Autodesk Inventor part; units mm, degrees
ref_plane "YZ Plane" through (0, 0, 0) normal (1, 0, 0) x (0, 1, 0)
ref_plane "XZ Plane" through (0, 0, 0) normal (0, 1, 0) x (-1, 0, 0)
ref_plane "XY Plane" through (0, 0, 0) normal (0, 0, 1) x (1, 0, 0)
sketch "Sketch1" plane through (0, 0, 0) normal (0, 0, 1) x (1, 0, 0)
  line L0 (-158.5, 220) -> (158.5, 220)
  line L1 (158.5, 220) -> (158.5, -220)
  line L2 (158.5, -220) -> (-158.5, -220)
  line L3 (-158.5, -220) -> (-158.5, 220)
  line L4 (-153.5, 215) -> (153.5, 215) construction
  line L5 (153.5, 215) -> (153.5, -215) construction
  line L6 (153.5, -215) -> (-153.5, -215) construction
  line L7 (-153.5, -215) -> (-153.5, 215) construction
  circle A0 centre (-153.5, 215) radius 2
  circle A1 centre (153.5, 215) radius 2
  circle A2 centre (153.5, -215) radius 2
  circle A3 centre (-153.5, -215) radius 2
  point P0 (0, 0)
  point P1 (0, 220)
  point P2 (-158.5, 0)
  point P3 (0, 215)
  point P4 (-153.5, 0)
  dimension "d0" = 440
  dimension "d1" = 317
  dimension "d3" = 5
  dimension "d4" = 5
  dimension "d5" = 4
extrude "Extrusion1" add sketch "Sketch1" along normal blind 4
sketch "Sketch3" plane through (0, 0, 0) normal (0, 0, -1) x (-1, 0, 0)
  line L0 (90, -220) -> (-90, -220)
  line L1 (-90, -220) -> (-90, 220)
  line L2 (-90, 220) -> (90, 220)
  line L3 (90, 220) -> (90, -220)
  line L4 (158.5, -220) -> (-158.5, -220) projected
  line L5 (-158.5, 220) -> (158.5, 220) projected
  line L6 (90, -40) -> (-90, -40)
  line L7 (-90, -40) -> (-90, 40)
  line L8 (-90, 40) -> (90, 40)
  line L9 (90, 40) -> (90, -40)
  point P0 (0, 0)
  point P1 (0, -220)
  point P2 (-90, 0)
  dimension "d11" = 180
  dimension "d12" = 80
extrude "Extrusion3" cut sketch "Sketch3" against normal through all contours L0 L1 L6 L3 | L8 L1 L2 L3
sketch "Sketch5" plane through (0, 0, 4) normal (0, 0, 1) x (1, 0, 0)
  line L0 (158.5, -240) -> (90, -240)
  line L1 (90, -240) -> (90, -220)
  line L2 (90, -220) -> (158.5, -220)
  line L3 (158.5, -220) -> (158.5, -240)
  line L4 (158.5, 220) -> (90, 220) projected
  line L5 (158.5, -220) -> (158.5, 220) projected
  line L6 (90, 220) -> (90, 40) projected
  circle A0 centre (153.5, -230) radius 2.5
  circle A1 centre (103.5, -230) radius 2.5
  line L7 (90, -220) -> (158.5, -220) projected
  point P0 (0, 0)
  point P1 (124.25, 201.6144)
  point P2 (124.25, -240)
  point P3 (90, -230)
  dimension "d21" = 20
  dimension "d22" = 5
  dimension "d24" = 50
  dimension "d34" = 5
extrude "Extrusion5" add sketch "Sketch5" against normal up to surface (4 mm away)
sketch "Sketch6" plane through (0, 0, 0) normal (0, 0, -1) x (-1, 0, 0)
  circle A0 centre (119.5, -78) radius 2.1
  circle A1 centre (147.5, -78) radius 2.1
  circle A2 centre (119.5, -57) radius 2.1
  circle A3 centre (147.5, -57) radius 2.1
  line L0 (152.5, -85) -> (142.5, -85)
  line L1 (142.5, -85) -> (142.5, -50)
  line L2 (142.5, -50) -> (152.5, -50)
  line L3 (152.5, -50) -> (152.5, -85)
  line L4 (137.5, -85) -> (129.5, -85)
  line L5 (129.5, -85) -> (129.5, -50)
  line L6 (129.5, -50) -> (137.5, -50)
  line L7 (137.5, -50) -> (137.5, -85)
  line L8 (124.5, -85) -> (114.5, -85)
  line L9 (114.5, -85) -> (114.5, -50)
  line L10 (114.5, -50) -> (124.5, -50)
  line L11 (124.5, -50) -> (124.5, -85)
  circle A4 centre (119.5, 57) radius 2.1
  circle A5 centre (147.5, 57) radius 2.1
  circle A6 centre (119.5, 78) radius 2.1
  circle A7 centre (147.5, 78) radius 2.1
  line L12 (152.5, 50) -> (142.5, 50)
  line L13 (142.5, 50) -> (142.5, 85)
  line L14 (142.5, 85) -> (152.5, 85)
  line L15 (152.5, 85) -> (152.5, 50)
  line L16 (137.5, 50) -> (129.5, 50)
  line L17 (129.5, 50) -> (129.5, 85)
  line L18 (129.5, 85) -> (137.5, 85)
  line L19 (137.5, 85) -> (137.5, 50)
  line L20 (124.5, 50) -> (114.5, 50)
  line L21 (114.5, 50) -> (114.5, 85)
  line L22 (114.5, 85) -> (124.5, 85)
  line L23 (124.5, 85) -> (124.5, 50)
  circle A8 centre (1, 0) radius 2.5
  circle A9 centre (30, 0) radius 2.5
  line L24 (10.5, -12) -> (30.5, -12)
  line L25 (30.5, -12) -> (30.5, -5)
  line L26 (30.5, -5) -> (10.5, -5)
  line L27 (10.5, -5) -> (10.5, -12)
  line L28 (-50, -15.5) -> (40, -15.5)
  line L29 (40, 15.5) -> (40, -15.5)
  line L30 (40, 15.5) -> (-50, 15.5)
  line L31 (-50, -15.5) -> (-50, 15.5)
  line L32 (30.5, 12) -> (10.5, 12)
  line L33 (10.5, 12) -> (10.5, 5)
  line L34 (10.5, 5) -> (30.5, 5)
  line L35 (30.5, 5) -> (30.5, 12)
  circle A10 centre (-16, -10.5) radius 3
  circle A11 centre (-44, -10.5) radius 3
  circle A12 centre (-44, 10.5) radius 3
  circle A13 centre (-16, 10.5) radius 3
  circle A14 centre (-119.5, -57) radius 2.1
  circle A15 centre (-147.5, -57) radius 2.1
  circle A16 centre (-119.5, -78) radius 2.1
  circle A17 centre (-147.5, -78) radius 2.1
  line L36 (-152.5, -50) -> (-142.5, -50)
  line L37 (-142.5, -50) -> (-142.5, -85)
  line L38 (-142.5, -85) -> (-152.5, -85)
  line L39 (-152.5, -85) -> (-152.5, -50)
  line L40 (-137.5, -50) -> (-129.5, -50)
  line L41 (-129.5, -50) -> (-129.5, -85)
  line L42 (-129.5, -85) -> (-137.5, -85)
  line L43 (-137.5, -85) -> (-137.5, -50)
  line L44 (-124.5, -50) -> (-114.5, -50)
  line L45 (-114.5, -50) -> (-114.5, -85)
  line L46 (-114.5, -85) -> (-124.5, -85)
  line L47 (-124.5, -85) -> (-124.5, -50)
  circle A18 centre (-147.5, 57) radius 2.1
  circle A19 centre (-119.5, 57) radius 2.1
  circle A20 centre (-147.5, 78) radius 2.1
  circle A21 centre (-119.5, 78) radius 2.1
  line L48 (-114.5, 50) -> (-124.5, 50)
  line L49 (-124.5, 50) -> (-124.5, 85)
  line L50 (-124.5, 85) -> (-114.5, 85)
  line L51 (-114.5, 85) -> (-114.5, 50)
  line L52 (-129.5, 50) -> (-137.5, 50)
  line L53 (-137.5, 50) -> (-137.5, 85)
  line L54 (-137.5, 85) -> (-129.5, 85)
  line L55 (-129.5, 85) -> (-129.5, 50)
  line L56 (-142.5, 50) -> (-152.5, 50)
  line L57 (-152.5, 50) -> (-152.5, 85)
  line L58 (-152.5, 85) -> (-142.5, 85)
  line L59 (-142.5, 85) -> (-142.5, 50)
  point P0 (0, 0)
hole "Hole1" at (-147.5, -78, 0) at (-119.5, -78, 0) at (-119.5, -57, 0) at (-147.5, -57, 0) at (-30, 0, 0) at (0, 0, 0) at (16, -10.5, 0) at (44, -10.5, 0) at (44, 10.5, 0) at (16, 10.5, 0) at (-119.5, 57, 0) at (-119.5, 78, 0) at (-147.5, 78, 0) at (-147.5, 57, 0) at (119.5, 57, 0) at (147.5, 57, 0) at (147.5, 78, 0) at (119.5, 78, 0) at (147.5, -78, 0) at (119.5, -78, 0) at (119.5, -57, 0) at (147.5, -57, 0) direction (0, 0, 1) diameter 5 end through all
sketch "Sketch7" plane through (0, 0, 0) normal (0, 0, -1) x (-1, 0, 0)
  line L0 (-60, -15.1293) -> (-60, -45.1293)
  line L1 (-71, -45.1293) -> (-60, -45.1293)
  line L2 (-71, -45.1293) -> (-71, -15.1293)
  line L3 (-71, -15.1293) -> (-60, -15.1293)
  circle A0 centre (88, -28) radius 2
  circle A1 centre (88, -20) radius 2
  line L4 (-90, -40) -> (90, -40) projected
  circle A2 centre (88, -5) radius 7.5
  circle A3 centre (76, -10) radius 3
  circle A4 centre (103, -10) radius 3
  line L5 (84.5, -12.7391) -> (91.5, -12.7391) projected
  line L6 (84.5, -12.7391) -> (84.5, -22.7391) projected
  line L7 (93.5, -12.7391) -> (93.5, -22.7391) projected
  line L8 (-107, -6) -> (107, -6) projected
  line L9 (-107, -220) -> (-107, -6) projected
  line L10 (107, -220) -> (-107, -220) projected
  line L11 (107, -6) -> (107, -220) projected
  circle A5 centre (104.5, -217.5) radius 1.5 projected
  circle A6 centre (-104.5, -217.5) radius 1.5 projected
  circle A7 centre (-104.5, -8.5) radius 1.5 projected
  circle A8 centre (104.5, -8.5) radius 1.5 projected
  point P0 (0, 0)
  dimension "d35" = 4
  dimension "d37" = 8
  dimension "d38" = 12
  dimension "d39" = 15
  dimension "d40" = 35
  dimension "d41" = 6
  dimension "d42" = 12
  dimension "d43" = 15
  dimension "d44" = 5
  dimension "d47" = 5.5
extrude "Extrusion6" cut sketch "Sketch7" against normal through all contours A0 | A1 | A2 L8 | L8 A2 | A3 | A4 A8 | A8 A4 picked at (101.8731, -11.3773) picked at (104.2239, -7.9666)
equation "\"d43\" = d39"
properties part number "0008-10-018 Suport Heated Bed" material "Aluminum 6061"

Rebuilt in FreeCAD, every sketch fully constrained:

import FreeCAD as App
import Part
import Sketcher
from FreeCAD import Vector
Q = App.Units.Quantity


def add_polygon(sketch, points):
    """Adds a closed chain of lines whose ends are joined by coincident constraints."""
    first, n = sketch.GeometryCount, len(points)
    for a, b in zip(points, points[1:] + points[:1]):
        sketch.addGeometry(Part.LineSegment(App.Vector(*a, 0), App.Vector(*b, 0)), False)
    for i in range(n):
        sketch.addConstraint(Sketcher.Constraint("Coincident", first + i, 2, first + (i + 1) % n, 1))

doc = App.newDocument("Part")
params = doc.addObject("Spreadsheet::Sheet", "Params")
for row, (alias, value) in enumerate([
    ("sketch1_diameter", "4 mm"),
    ("sketch1_width", "317 mm"),
    ("sketch1_height", "440 mm"),
    ("pad1_length", "4 mm"),
    ("sketch2_width", "180 mm"),
    ("sketch3_diameter", "5 mm"),
    ("sketch3_height", "20 mm"),
    ("sketch3_width", "68.5 mm"),
    ("pad2_length", "4 mm"),
    ("sketch4_diameter", "5 mm"),
    ("hole_diameter", "5 mm"),
    ("sketch5_diameter", "4 mm"),
    ("sketch5_diameter2", "15 mm"),
    ("sketch5_diameter3", "6 mm"),
], start=1):
    params.set(f"A{row}", alias)
    params.set(f"B{row}", "=" + value)
    params.setAlias(f"B{row}", alias)

body = doc.addObject("PartDesign::Body", "Body")

# Sketch on XY plane
sketch1 = doc.addObject("Sketcher::SketchObject", "Sketch")
body.addObject(sketch1)
sketch1.AttachmentSupport = (doc.XY_Plane, [""])
sketch1.MapMode = "FlatFace"
add_polygon(sketch1, [(158.5, 220), (-158.5, 220), (-158.5, -220), (158.5, -220)])  # lines 0-3
sketch1.addGeometry(Part.Circle(Vector(-153.5, -215, 0), Vector(0, 0, 1), 2), False)  # 4
sketch1.addGeometry(Part.Circle(Vector(153.5, -215, 0), Vector(0, 0, 1), 2), False)  # 5
sketch1.addGeometry(Part.Circle(Vector(-153.5, 215, 0), Vector(0, 0, 1), 2), False)  # 6
sketch1.addGeometry(Part.Circle(Vector(153.5, 215, 0), Vector(0, 0, 1), 2), False)  # 7
sketch1.addConstraint(Sketcher.Constraint("Horizontal", 0))
sketch1.addConstraint(Sketcher.Constraint("Vertical", 1))
sketch1.addConstraint(Sketcher.Constraint("Horizontal", 2))
sketch1.addConstraint(Sketcher.Constraint("Vertical", 3))
sketch1.addConstraint(Sketcher.Constraint("Equal", 4, 5))
sketch1.addConstraint(Sketcher.Constraint("Equal", 5, 6))
sketch1.addConstraint(Sketcher.Constraint("Equal", 6, 7))
sketch1.addConstraint(Sketcher.Constraint("Symmetric", 5, 3, 6, 3, -1, 1))
sketch1.addConstraint(Sketcher.Constraint("Symmetric", 4, 3, 7, 3, -1, 1))
sketch1.addConstraint(Sketcher.Constraint("Symmetric", 0, 2, 2, 2, -1, 1))
sketch1.addConstraint(Sketcher.Constraint("Symmetric", 4, 3, 5, 3, -2))
sketch1.addConstraint(Sketcher.Constraint("Diameter", 4, Q("4 mm")))
sketch1.addConstraint(Sketcher.Constraint("DistanceX", 0, 2, 0, 1, Q("317 mm")))
sketch1.addConstraint(Sketcher.Constraint("DistanceY", 1, 2, 1, 1, Q("440 mm")))
sketch1.addConstraint(Sketcher.Constraint("DistanceX", 0, 2, 6, 3, Q("5 mm")))
sketch1.addConstraint(Sketcher.Constraint("DistanceY", 6, 3, 0, 2, Q("5 mm")))
sketch1.setExpression("Constraints[15]", "Params.sketch1_diameter")
sketch1.setExpression("Constraints[16]", "Params.sketch1_width")
sketch1.setExpression("Constraints[17]", "Params.sketch1_height")
pad1 = doc.addObject("PartDesign::Pad", "Pad")
body.addObject(pad1)
pad1.Profile = sketch1
pad1.setExpression("Length", "Params.pad1_length")

# Sketch on XY plane
sketch2 = doc.addObject("Sketcher::SketchObject", "Sketch001")
body.addObject(sketch2)
sketch2.AttachmentSupport = (doc.XY_Plane, [""])
sketch2.MapMode = "FlatFace"
add_polygon(sketch2, [(90, -220), (-90, -220), (-90, -40), (90, -40)])  # lines 0-3
add_polygon(sketch2, [(90, 40), (-90, 40), (-90, 220), (90, 220)])  # lines 4-7
sketch2.addConstraint(Sketcher.Constraint("Horizontal", 0))
sketch2.addConstraint(Sketcher.Constraint("Vertical", 1))
sketch2.addConstraint(Sketcher.Constraint("Horizontal", 2))
sketch2.addConstraint(Sketcher.Constraint("Vertical", 3))
sketch2.addConstraint(Sketcher.Constraint("Horizontal", 4))
sketch2.addConstraint(Sketcher.Constraint("Vertical", 5))
sketch2.addConstraint(Sketcher.Constraint("Horizontal", 6))
sketch2.addConstraint(Sketcher.Constraint("Vertical", 7))
sketch2.addConstraint(Sketcher.Constraint("Symmetric", 2, 2, 4, 2, -1, 1))
sketch2.addConstraint(Sketcher.Constraint("Symmetric", 0, 2, 6, 2, -1, 1))
sketch2.addConstraint(Sketcher.Constraint("Vertical", 1, 2, 4, 2))
sketch2.addConstraint(Sketcher.Constraint("Equal", 6, 1))
sketch2.addConstraint(Sketcher.Constraint("DistanceX", 0, 2, 0, 1, Q("180 mm")))
sketch2.addConstraint(Sketcher.Constraint("DistanceY", 1, 2, 4, 2, Q("80 mm")))
sketch2.setExpression("Constraints[20]", "Params.sketch2_width")
pocket1 = doc.addObject("PartDesign::Pocket", "Pocket")
body.addObject(pocket1)
pocket1.Profile = sketch2
pocket1.Type = "ThroughAll"
pocket1.Reversed = True

# Sketch on XY plane
sketch3 = doc.addObject("Sketcher::SketchObject", "Sketch002")
body.addObject(sketch3)
sketch3.AttachmentSupport = (doc.XY_Plane, [""])
sketch3.MapMode = "FlatFace"
sketch3.AttachmentOffset = App.Placement(Vector(0, 0, 4), App.Rotation())
add_polygon(sketch3, [(90, -240), (158.5, -240), (158.5, -220), (90, -220)])  # lines 0-3
sketch3.addGeometry(Part.Circle(Vector(103.5, -230, 0), Vector(0, 0, 1), 2.5), False)  # 4
sketch3.addGeometry(Part.Circle(Vector(153.5, -230, 0), Vector(0, 0, 1), 2.5), False)  # 5
sketch3.addConstraint(Sketcher.Constraint("Horizontal", 0))
sketch3.addConstraint(Sketcher.Constraint("Vertical", 1))
sketch3.addConstraint(Sketcher.Constraint("Horizontal", 2))
sketch3.addConstraint(Sketcher.Constraint("Vertical", 3))
sketch3.addConstraint(Sketcher.Constraint("Equal", 4, 5))
sketch3.addConstraint(Sketcher.Constraint("Horizontal", 4, 3, 5, 3))
sketch3.addConstraint(Sketcher.Constraint("Diameter", 4, Q("5 mm")))
sketch3.addConstraint(Sketcher.Constraint("DistanceY", 1, 1, 1, 2, Q("20 mm")))
sketch3.addConstraint(Sketcher.Constraint("DistanceX", 4, 3, 5, 3, Q("50 mm")))
sketch3.addConstraint(Sketcher.Constraint("DistanceX", 5, 3, 0, 2, Q("5 mm")))
sketch3.addConstraint(Sketcher.Constraint("DistanceX", 0, 1, 0, 2, Q("68.5 mm")))
sketch3.addConstraint(Sketcher.Constraint("DistanceY", 4, 3, -1, 1, Q("230 mm")))
sketch3.addConstraint(Sketcher.Constraint("DistanceY", 0, 2, -1, 1, Q("240 mm")))
sketch3.addConstraint(Sketcher.Constraint("DistanceX", -1, 1, 2, 2, Q("90 mm")))
sketch3.setExpression("Constraints[10]", "Params.sketch3_diameter")
sketch3.setExpression("Constraints[11]", "Params.sketch3_height")
sketch3.setExpression("Constraints[14]", "Params.sketch3_width")
pad2 = doc.addObject("PartDesign::Pad", "Pad001")
body.addObject(pad2)
pad2.Profile = sketch3
pad2.setExpression("Length", "Params.pad2_length")
pad2.Reversed = True

# Sketch on XY plane
sketch4 = doc.addObject("Sketcher::SketchObject", "Sketch003")
body.addObject(sketch4)
sketch4.AttachmentSupport = (doc.XY_Plane, [""])
sketch4.MapMode = "FlatFace"
sketch4.addGeometry(Part.Circle(Vector(-147.5, -78, 0), Vector(0, 0, 1), 2.5), False)
sketch4.addGeometry(Part.Circle(Vector(-119.5, -78, 0), Vector(0, 0, 1), 2.5), False)
sketch4.addGeometry(Part.Circle(Vector(-119.5, -57, 0), Vector(0, 0, 1), 2.5), False)
sketch4.addGeometry(Part.Circle(Vector(-147.5, -57, 0), Vector(0, 0, 1), 2.5), False)
sketch4.addGeometry(Part.Circle(Vector(-30, 0, 0), Vector(0, 0, 1), 2.5), False)
sketch4.addGeometry(Part.Circle(Vector(0, 0, 0), Vector(0, 0, 1), 2.5), False)
sketch4.addGeometry(Part.Circle(Vector(16, -10.5, 0), Vector(0, 0, 1), 2.5), False)
sketch4.addGeometry(Part.Circle(Vector(44, -10.5, 0), Vector(0, 0, 1), 2.5), False)
sketch4.addGeometry(Part.Circle(Vector(44, 10.5, 0), Vector(0, 0, 1), 2.5), False)
sketch4.addGeometry(Part.Circle(Vector(16, 10.5, 0), Vector(0, 0, 1), 2.5), False)
sketch4.addGeometry(Part.Circle(Vector(-119.5, 57, 0), Vector(0, 0, 1), 2.5), False)
sketch4.addGeometry(Part.Circle(Vector(-119.5, 78, 0), Vector(0, 0, 1), 2.5), False)
sketch4.addGeometry(Part.Circle(Vector(-147.5, 78, 0), Vector(0, 0, 1), 2.5), False)
sketch4.addGeometry(Part.Circle(Vector(-147.5, 57, 0), Vector(0, 0, 1), 2.5), False)
sketch4.addGeometry(Part.Circle(Vector(119.5, 57, 0), Vector(0, 0, 1), 2.5), False)
sketch4.addGeometry(Part.Circle(Vector(147.5, 57, 0), Vector(0, 0, 1), 2.5), False)
sketch4.addGeometry(Part.Circle(Vector(147.5, 78, 0), Vector(0, 0, 1), 2.5), False)
sketch4.addGeometry(Part.Circle(Vector(119.5, 78, 0), Vector(0, 0, 1), 2.5), False)
sketch4.addGeometry(Part.Circle(Vector(147.5, -78, 0), Vector(0, 0, 1), 2.5), False)
sketch4.addGeometry(Part.Circle(Vector(119.5, -78, 0), Vector(0, 0, 1), 2.5), False)
sketch4.addGeometry(Part.Circle(Vector(119.5, -57, 0), Vector(0, 0, 1), 2.5), False)
sketch4.addGeometry(Part.Circle(Vector(147.5, -57, 0), Vector(0, 0, 1), 2.5), False)
sketch4.addConstraint(Sketcher.Constraint("Coincident", 5, 3, -1, 1))
sketch4.addConstraint(Sketcher.Constraint("Equal", 0, 1))
sketch4.addConstraint(Sketcher.Constraint("Equal", 1, 2))
sketch4.addConstraint(Sketcher.Constraint("Equal", 2, 3))
sketch4.addConstraint(Sketcher.Constraint("Equal", 3, 4))
sketch4.addConstraint(Sketcher.Constraint("Equal", 4, 5))
sketch4.addConstraint(Sketcher.Constraint("Equal", 5, 6))
sketch4.addConstraint(Sketcher.Constraint("Equal", 6, 7))
sketch4.addConstraint(Sketcher.Constraint("Equal", 7, 8))
sketch4.addConstraint(Sketcher.Constraint("Equal", 8, 9))
sketch4.addConstraint(Sketcher.Constraint("Equal", 9, 10))
sketch4.addConstraint(Sketcher.Constraint("Equal", 10, 11))
sketch4.addConstraint(Sketcher.Constraint("Equal", 11, 12))
sketch4.addConstraint(Sketcher.Constraint("Equal", 12, 13))
sketch4.addConstraint(Sketcher.Constraint("Equal", 13, 14))
sketch4.addConstraint(Sketcher.Constraint("Equal", 14, 15))
sketch4.addConstraint(Sketcher.Constraint("Equal", 15, 16))
sketch4.addConstraint(Sketcher.Constraint("Equal", 16, 17))
sketch4.addConstraint(Sketcher.Constraint("Equal", 17, 18))
sketch4.addConstraint(Sketcher.Constraint("Equal", 18, 19))
sketch4.addConstraint(Sketcher.Constraint("Equal", 19, 20))
sketch4.addConstraint(Sketcher.Constraint("Equal", 20, 21))
sketch4.addConstraint(Sketcher.Constraint("Symmetric", 2, 3, 14, 3, -1, 1))
sketch4.addConstraint(Sketcher.Constraint("Symmetric", 3, 3, 15, 3, -1, 1))
sketch4.addConstraint(Sketcher.Constraint("Symmetric", 0, 3, 16, 3, -1, 1))
sketch4.addConstraint(Sketcher.Constraint("Symmetric", 1, 3, 17, 3, -1, 1))
sketch4.addConstraint(Sketcher.Constraint("Symmetric", 12, 3, 18, 3, -1, 1))
sketch4.addConstraint(Sketcher.Constraint("Symmetric", 11, 3, 19, 3, -1, 1))
sketch4.addConstraint(Sketcher.Constraint("Symmetric", 10, 3, 20, 3, -1, 1))
sketch4.addConstraint(Sketcher.Constraint("Symmetric", 13, 3, 21, 3, -1, 1))
sketch4.addConstraint(Sketcher.Constraint("Symmetric", 10, 3, 14, 3, -2))
sketch4.addConstraint(Sketcher.Constraint("Symmetric", 13, 3, 15, 3, -2))
sketch4.addConstraint(Sketcher.Constraint("Symmetric", 12, 3, 16, 3, -2))
sketch4.addConstraint(Sketcher.Constraint("Symmetric", 11, 3, 17, 3, -2))
sketch4.addConstraint(Sketcher.Constraint("Symmetric", 7, 3, 8, 3, -1))
sketch4.addConstraint(Sketcher.Constraint("Symmetric", 6, 3, 9, 3, -1))
sketch4.addConstraint(Sketcher.Constraint("PointOnObject", 4, 3, -1))
sketch4.addConstraint(Sketcher.Constraint("Horizontal", 0, 3, 1, 3))
sketch4.addConstraint(Sketcher.Constraint("Horizontal", 2, 3, 3, 3))
sketch4.addConstraint(Sketcher.Constraint("Horizontal", 6, 3, 7, 3))
sketch4.addConstraint(Sketcher.Constraint("Vertical", 1, 3, 2, 3))
sketch4.addConstraint(Sketcher.Constraint("Vertical", 0, 3, 3, 3))
sketch4.addConstraint(Sketcher.Constraint("Diameter", 0, Q("5 mm")))
sketch4.addConstraint(Sketcher.Constraint("DistanceY", 0, 3, -1, 1, Q("78 mm")))
sketch4.addConstraint(Sketcher.Constraint("DistanceY", 2, 3, -1, 1, Q("57 mm")))
sketch4.addConstraint(Sketcher.Constraint("DistanceX", 4, 3, -1, 1, Q("30 mm")))
sketch4.addConstraint(Sketcher.Constraint("DistanceX", -1, 1, 6, 3, Q("16 mm")))
sketch4.addConstraint(Sketcher.Constraint("DistanceX", -1, 1, 7, 3, Q("44 mm")))
sketch4.addConstraint(Sketcher.Constraint("DistanceX", 0, 3, 1, 3, Q("28 mm")))
sketch4.addConstraint(Sketcher.Constraint("DistanceY", 7, 3, 8, 3, Q("21 mm")))
sketch4.addConstraint(Sketcher.Constraint("DistanceX", 0, 3, -1, 1, Q("147.5 mm")))
sketch4.setExpression("Constraints[42]", "Params.sketch4_diameter")
doc.recompute()
hole = doc.addObject("PartDesign::Hole", "Hole")
body.addObject(hole)
hole.Profile = sketch4
hole.ThreadType = "None"
hole.setExpression("Diameter", "Params.hole_diameter")
hole.DepthType = "ThroughAll"
hole.Reversed = True

# Sketch on XY plane
sketch5 = doc.addObject("Sketcher::SketchObject", "Sketch004")
body.addObject(sketch5)
sketch5.AttachmentSupport = (doc.XY_Plane, [""])
sketch5.MapMode = "FlatFace"
sketch5.addGeometry(Part.Circle(Vector(-88, -28, 0), Vector(0, 0, 1), 2), False)
sketch5.addGeometry(Part.Circle(Vector(-88, -20, 0), Vector(0, 0, 1), 2), False)
sketch5.addGeometry(Part.Circle(Vector(-88, -5, 0), Vector(0, 0, 1), 7.5), False)
sketch5.addGeometry(Part.Circle(Vector(-76, -10, 0), Vector(0, 0, 1), 3), False)
sketch5.addGeometry(Part.Circle(Vector(-103, -10, 0), Vector(0, 0, 1), 3), False)
sketch5.addConstraint(Sketcher.Constraint("Equal", 0, 1))
sketch5.addConstraint(Sketcher.Constraint("Equal", 3, 4))
sketch5.addConstraint(Sketcher.Constraint("Horizontal", 3, 3, 4, 3))
sketch5.addConstraint(Sketcher.Constraint("Vertical", 0, 3, 1, 3))
sketch5.addConstraint(Sketcher.Constraint("Vertical", 1, 3, 2, 3))
sketch5.addConstraint(Sketcher.Constraint("Diameter", 0, Q("4 mm")))
sketch5.addConstraint(Sketcher.Constraint("Diameter", 2, Q("15 mm")))
sketch5.addConstraint(Sketcher.Constraint("Diameter", 3, Q("6 mm")))
sketch5.addConstraint(Sketcher.Constraint("DistanceY", 2, 3, -1, 1, Q("5 mm")))
sketch5.addConstraint(Sketcher.Constraint("DistanceY", 0, 3, 1, 3, Q("8 mm")))
sketch5.addConstraint(Sketcher.Constraint("DistanceY", 1, 3, 2, 3, Q("15 mm")))
sketch5.addConstraint(Sketcher.Constraint("DistanceX", 2, 3, 3, 3, Q("12 mm")))
sketch5.addConstraint(Sketcher.Constraint("DistanceY", 3, 3, 2, 3, Q("5 mm")))
sketch5.addConstraint(Sketcher.Constraint("DistanceX", 4, 3, 2, 3, Q("15 mm")))
sketch5.addConstraint(Sketcher.Constraint("DistanceX", 0, 3, -1, 1, Q("88 mm")))
sketch5.setExpression("Constraints[5]", "Params.sketch5_diameter")
sketch5.setExpression("Constraints[6]", "Params.sketch5_diameter2")
sketch5.setExpression("Constraints[7]", "Params.sketch5_diameter3")
pocket2 = doc.addObject("PartDesign::Pocket", "Pocket001")
body.addObject(pocket2)
pocket2.Profile = sketch5
pocket2.Type = "ThroughAll"
pocket2.Reversed = True

doc.recompute()
